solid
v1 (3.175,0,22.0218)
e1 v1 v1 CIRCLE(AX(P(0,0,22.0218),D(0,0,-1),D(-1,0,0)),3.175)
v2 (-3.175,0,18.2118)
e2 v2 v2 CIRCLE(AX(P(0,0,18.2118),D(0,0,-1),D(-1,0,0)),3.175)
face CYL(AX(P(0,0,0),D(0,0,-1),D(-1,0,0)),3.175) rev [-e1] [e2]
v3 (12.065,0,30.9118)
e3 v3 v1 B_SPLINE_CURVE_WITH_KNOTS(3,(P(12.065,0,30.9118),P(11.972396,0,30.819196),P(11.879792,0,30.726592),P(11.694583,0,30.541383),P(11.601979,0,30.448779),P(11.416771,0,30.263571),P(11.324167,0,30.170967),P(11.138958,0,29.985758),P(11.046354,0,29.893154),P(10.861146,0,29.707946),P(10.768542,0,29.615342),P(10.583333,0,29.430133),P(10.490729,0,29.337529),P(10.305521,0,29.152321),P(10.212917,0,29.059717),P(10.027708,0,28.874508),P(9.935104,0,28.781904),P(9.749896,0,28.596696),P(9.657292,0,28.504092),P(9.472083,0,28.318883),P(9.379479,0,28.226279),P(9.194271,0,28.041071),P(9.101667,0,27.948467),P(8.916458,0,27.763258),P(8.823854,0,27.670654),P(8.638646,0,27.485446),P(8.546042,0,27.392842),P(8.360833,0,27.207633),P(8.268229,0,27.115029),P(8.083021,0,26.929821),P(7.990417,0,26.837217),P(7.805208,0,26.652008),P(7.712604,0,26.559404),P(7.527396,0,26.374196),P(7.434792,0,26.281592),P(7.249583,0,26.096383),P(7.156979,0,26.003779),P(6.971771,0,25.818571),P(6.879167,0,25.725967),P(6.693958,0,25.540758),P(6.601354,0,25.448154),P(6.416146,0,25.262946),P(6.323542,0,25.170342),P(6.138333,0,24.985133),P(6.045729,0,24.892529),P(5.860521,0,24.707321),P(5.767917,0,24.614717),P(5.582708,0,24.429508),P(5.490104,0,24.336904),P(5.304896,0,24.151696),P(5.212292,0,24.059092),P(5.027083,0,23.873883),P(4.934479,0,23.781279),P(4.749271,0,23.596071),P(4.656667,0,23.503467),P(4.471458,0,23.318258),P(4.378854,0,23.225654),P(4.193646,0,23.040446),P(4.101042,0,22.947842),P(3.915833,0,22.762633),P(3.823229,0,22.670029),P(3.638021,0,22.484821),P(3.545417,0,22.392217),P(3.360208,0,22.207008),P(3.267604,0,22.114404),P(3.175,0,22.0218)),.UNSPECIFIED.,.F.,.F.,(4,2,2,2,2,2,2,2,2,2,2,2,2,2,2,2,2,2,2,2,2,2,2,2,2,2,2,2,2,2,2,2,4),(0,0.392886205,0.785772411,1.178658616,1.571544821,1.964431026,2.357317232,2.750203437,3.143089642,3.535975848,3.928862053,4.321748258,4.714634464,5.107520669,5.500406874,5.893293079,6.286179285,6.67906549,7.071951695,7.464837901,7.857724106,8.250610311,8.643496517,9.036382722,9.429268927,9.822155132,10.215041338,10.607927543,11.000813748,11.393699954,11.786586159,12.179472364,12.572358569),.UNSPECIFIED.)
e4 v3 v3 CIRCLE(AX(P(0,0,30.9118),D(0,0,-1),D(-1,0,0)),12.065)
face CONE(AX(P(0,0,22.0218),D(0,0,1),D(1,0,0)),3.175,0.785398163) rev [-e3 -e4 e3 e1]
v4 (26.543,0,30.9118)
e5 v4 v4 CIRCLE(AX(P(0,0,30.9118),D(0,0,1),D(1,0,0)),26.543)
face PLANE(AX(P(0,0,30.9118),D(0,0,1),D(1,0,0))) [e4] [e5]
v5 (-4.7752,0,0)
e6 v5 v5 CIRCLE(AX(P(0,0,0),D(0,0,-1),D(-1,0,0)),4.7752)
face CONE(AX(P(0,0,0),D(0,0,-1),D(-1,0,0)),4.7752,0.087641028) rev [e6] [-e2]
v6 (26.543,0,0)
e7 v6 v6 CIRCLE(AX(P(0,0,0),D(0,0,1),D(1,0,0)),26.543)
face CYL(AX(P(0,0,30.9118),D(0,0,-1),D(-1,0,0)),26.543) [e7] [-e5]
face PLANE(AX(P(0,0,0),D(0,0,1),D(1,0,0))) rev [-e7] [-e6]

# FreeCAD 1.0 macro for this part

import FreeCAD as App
import Part
import Sketcher

V = App.Vector
Q = App.Units.Quantity


def add_polygon(sketch, points):
    """Adds a closed chain of lines whose ends are joined by coincident constraints."""
    first, n = sketch.GeometryCount, len(points)
    for a, b in zip(points, points[1:] + points[:1]):
        sketch.addGeometry(Part.LineSegment(App.Vector(*a, 0), App.Vector(*b, 0)), False)
    for i in range(n):
        sketch.addConstraint(Sketcher.Constraint("Coincident", first + i, 2, first + (i + 1) % n, 1))

doc = App.newDocument("Part")
body = doc.addObject("PartDesign::Body", "Body")

# Sketch on XY plane
sketch1 = body.newObject("Sketcher::SketchObject", "Sketch")
sketch1.AttachmentSupport = (doc.getObject("XY_Plane"), [""])
sketch1.MapMode = "FlatFace"
sketch1.addGeometry(Part.Circle(V(0, 0, 0), V(0, 0, 1), 27), False)
sketch1.addConstraint([
    Sketcher.Constraint("Coincident", 0, 3, -1, 1),
    Sketcher.Constraint("Diameter", 0, Q("2.09 in")),
])
pad1 = body.newObject("PartDesign::Pad", "Pad")
pad1.Profile = sketch1
pad1.Length = Q("1.217 in")

# Sketch on YZ plane
sketch2 = body.newObject("Sketcher::SketchObject", "Sketch001")
sketch2.AttachmentSupport = (doc.getObject("YZ_Plane"), [""])
sketch2.MapMode = "FlatFace"
add_polygon(sketch2, [(3.2, 22), (12.1, 30.9), (0, 30.9), (0, 0), (4.8, 0), (3.2, 18.2)])  # lines 0-5
sketch2.addConstraint([
    Sketcher.Constraint("Horizontal", 1),
    Sketcher.Constraint("Vertical", 2),
    Sketcher.Constraint("Horizontal", 3),
    Sketcher.Constraint("Vertical", 5),
    Sketcher.Constraint("Coincident", 2, 2, -1, 1),
    Sketcher.Constraint("Angle", 0, Q("45 deg")),
    Sketcher.Constraint("DistanceY", 5, 1, 5, 2, Q("0.15 in")),
    Sketcher.Constraint("DistanceY", 4, 2, 1, 2, Q("0.5 in")),
    Sketcher.Constraint("DistanceX", 1, 2, 1, 1, Q("0.475 in")),
    Sketcher.Constraint("DistanceX", 3, 1, 3, 2, Q("0.188 in")),
    Sketcher.Constraint("DistanceY", 2, 2, 2, 1, Q("1.217 in")),
])
groove = body.newObject("PartDesign::Groove", "Groove")
groove.Profile = sketch2
groove.ReferenceAxis = (sketch2, ["V_Axis"])
groove.Angle = 360

doc.recompute()
